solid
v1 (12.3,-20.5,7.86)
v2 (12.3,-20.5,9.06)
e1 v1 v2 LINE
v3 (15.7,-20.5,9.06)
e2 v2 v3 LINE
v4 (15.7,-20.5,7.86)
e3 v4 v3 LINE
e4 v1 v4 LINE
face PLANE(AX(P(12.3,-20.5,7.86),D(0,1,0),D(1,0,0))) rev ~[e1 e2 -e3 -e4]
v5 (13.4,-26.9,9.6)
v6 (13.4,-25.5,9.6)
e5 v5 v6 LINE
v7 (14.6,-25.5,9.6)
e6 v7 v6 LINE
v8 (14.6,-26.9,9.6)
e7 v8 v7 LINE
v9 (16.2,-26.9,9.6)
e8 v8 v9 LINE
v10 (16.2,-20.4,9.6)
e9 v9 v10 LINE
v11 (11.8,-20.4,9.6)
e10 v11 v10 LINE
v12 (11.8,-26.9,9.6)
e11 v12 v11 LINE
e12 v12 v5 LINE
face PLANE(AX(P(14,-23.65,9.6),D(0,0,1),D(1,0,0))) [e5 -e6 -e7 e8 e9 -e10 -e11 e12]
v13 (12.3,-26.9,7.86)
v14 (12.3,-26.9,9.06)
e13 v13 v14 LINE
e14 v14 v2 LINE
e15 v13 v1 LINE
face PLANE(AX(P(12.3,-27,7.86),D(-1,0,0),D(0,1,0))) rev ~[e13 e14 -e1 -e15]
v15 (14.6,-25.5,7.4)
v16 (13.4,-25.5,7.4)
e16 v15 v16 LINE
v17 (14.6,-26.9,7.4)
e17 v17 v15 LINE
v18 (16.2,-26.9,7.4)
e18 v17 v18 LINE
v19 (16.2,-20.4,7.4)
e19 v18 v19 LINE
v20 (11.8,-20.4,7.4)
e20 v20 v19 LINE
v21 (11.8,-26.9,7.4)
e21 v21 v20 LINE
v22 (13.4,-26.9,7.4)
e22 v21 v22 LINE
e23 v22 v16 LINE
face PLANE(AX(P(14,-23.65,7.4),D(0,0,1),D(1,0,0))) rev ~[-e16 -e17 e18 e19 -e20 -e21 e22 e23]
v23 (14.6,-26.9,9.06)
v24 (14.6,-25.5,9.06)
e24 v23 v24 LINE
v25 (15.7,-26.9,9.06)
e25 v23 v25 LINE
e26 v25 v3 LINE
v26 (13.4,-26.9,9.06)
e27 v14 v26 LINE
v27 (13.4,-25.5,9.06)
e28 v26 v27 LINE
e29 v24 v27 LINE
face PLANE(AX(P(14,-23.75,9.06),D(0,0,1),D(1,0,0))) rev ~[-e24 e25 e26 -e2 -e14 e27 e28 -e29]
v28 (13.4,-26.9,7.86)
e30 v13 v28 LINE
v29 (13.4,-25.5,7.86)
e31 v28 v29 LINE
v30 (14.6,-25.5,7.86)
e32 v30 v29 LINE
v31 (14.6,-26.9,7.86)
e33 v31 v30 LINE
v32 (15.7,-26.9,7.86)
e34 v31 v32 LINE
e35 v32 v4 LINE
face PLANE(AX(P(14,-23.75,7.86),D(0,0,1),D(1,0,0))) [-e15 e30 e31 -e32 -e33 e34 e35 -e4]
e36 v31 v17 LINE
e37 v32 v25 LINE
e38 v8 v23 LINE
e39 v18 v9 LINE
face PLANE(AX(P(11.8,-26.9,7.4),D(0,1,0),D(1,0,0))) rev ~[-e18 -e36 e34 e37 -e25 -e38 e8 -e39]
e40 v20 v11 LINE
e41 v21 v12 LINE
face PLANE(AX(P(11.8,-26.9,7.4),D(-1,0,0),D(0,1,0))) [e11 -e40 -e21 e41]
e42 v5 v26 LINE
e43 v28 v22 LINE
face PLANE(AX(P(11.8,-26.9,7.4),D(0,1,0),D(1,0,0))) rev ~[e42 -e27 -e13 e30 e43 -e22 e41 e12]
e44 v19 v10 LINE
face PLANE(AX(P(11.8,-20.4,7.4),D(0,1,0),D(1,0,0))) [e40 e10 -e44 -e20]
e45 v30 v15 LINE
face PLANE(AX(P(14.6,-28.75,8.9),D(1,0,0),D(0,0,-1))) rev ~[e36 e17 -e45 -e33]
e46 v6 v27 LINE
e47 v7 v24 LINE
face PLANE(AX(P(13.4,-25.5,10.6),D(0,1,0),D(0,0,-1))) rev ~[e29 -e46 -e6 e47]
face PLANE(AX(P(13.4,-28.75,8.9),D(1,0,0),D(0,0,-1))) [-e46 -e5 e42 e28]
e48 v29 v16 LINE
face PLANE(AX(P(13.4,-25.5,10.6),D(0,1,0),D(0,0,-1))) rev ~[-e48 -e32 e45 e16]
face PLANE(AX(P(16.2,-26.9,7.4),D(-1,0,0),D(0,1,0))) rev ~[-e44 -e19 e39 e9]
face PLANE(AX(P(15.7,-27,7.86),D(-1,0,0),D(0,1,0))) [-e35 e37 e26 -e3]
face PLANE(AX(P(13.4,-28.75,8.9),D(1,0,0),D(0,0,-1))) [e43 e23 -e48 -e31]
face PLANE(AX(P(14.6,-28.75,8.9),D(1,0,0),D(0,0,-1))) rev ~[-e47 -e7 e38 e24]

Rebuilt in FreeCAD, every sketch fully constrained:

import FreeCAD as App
import Part
import Sketcher

V = App.Vector


def add_polygon(sketch, points):
    """Adds a closed chain of lines whose ends are joined by coincident constraints."""
    first, n = sketch.GeometryCount, len(points)
    for a, b in zip(points, points[1:] + points[:1]):
        sketch.addGeometry(Part.LineSegment(App.Vector(*a, 0), App.Vector(*b, 0)), False)
    for i in range(n):
        sketch.addConstraint(Sketcher.Constraint("Coincident", first + i, 2, first + (i + 1) % n, 1))

doc = App.newDocument("Part")
body = doc.addObject("PartDesign::Body", "Body")

sketch1 = body.newObject("Sketcher::SketchObject", "Sketch")
sketch1.AttachmentSupport = (doc.getObject("YZ_Plane"), [""])
sketch1.MapMode = "FlatFace"
sketch1.AttachmentOffset = App.Placement(V(0, 0, 15.8), App.Rotation())
add_polygon(sketch1, [(-25.5, 13), (-32, 13), (-32, 9.6), (-25.5, 9.6)])
sketch1.addConstraint([
    Sketcher.Constraint("Horizontal", 0),
    Sketcher.Constraint("Vertical", 1),
    Sketcher.Constraint("Horizontal", 2),
    Sketcher.Constraint("Vertical", 3),
    Sketcher.Constraint("DistanceX", 0, 2, 0, 1, 6.5),
    Sketcher.Constraint("DistanceY", 1, 2, 1, 1, 3.4),
    Sketcher.Constraint("DistanceX", 0, 2, -1, 1, 32.0),
    Sketcher.Constraint("DistanceY", -1, 1, 0, 2, 13.0),
])
pad1 = body.newObject("PartDesign::Pad", "Pad")
pad1.Profile = sketch1
pad1.Length = 1.2
body2 = doc.addObject("PartDesign::Body", "Body001")

sketch2 = body2.newObject("Sketcher::SketchObject", "Sketch001")
sketch2.AttachmentSupport = (doc.getObject("XY_Plane001"), [""])
sketch2.MapMode = "FlatFace"
sketch2.AttachmentOffset = App.Placement(V(0, 0, 10.26), App.Rotation())
add_polygon(sketch2, [(14.7, -20.5), (14.7, -27), (18.1, -27), (18.1, -20.5)])
sketch2.addConstraint([
    Sketcher.Constraint("Vertical", 0),
    Sketcher.Constraint("Horizontal", 1),
    Sketcher.Constraint("Vertical", 2),
    Sketcher.Constraint("Horizontal", 3),
    Sketcher.Constraint("DistanceX", 1, 1, 1, 2, 3.4),
    Sketcher.Constraint("DistanceY", 0, 2, 0, 1, 6.5),
    Sketcher.Constraint("DistanceY", 0, 2, -1, 1, 27.0),
    Sketcher.Constraint("DistanceX", -1, 1, 0, 2, 14.7),
])
pad2 = body2.newObject("PartDesign::Pad", "Pad001")
pad2.Profile = sketch2
pad2.Length = 1.2
body3 = doc.addObject("PartDesign::Body", "Body002")

sketch3 = body3.newObject("Sketcher::SketchObject", "Sketch002")
sketch3.AttachmentSupport = (doc.getObject("XY_Plane002"), [""])
sketch3.MapMode = "FlatFace"
sketch3.AttachmentOffset = App.Placement(V(0, 0, 9.8), App.Rotation())
add_polygon(sketch3, [(14.2, -20.4), (14.2, -26.9), (18.6, -26.9), (18.6, -20.4)])
sketch3.addConstraint([
    Sketcher.Constraint("Vertical", 0),
    Sketcher.Constraint("Horizontal", 1),
    Sketcher.Constraint("Vertical", 2),
    Sketcher.Constraint("Horizontal", 3),
    Sketcher.Constraint("DistanceX", 1, 1, 1, 2, 4.4),
    Sketcher.Constraint("DistanceY", 0, 2, 0, 1, 6.5),
    Sketcher.Constraint("DistanceX", -1, 1, 0, 2, 14.2),
    Sketcher.Constraint("DistanceY", 0, 2, -1, 1, 26.9),
])
pad3 = body3.newObject("PartDesign::Pad", "Pad002")
pad3.Profile = sketch3
pad3.Length = 2.2
doc.recompute()

boolean = body3.newObject("PartDesign::Boolean", "Boolean")
boolean.Type = "Cut"
boolean.addObjects([body2])
doc.recompute()

boolean2 = body3.newObject("PartDesign::Boolean", "Boolean001")
boolean2.Type = "Cut"
boolean2.addObjects([body])
body4 = doc.addObject("PartDesign::Body", "Body003")
doc.recompute()

body3.Placement = App.Placement(V(-2.4, 0, -2.4), App.Rotation(V(0, 0, 1), 0))
boolean3 = body4.newObject("PartDesign::Boolean", "Boolean002")
boolean3.Type = "Fuse"
boolean3.addObjects([body3])

doc.recompute()
